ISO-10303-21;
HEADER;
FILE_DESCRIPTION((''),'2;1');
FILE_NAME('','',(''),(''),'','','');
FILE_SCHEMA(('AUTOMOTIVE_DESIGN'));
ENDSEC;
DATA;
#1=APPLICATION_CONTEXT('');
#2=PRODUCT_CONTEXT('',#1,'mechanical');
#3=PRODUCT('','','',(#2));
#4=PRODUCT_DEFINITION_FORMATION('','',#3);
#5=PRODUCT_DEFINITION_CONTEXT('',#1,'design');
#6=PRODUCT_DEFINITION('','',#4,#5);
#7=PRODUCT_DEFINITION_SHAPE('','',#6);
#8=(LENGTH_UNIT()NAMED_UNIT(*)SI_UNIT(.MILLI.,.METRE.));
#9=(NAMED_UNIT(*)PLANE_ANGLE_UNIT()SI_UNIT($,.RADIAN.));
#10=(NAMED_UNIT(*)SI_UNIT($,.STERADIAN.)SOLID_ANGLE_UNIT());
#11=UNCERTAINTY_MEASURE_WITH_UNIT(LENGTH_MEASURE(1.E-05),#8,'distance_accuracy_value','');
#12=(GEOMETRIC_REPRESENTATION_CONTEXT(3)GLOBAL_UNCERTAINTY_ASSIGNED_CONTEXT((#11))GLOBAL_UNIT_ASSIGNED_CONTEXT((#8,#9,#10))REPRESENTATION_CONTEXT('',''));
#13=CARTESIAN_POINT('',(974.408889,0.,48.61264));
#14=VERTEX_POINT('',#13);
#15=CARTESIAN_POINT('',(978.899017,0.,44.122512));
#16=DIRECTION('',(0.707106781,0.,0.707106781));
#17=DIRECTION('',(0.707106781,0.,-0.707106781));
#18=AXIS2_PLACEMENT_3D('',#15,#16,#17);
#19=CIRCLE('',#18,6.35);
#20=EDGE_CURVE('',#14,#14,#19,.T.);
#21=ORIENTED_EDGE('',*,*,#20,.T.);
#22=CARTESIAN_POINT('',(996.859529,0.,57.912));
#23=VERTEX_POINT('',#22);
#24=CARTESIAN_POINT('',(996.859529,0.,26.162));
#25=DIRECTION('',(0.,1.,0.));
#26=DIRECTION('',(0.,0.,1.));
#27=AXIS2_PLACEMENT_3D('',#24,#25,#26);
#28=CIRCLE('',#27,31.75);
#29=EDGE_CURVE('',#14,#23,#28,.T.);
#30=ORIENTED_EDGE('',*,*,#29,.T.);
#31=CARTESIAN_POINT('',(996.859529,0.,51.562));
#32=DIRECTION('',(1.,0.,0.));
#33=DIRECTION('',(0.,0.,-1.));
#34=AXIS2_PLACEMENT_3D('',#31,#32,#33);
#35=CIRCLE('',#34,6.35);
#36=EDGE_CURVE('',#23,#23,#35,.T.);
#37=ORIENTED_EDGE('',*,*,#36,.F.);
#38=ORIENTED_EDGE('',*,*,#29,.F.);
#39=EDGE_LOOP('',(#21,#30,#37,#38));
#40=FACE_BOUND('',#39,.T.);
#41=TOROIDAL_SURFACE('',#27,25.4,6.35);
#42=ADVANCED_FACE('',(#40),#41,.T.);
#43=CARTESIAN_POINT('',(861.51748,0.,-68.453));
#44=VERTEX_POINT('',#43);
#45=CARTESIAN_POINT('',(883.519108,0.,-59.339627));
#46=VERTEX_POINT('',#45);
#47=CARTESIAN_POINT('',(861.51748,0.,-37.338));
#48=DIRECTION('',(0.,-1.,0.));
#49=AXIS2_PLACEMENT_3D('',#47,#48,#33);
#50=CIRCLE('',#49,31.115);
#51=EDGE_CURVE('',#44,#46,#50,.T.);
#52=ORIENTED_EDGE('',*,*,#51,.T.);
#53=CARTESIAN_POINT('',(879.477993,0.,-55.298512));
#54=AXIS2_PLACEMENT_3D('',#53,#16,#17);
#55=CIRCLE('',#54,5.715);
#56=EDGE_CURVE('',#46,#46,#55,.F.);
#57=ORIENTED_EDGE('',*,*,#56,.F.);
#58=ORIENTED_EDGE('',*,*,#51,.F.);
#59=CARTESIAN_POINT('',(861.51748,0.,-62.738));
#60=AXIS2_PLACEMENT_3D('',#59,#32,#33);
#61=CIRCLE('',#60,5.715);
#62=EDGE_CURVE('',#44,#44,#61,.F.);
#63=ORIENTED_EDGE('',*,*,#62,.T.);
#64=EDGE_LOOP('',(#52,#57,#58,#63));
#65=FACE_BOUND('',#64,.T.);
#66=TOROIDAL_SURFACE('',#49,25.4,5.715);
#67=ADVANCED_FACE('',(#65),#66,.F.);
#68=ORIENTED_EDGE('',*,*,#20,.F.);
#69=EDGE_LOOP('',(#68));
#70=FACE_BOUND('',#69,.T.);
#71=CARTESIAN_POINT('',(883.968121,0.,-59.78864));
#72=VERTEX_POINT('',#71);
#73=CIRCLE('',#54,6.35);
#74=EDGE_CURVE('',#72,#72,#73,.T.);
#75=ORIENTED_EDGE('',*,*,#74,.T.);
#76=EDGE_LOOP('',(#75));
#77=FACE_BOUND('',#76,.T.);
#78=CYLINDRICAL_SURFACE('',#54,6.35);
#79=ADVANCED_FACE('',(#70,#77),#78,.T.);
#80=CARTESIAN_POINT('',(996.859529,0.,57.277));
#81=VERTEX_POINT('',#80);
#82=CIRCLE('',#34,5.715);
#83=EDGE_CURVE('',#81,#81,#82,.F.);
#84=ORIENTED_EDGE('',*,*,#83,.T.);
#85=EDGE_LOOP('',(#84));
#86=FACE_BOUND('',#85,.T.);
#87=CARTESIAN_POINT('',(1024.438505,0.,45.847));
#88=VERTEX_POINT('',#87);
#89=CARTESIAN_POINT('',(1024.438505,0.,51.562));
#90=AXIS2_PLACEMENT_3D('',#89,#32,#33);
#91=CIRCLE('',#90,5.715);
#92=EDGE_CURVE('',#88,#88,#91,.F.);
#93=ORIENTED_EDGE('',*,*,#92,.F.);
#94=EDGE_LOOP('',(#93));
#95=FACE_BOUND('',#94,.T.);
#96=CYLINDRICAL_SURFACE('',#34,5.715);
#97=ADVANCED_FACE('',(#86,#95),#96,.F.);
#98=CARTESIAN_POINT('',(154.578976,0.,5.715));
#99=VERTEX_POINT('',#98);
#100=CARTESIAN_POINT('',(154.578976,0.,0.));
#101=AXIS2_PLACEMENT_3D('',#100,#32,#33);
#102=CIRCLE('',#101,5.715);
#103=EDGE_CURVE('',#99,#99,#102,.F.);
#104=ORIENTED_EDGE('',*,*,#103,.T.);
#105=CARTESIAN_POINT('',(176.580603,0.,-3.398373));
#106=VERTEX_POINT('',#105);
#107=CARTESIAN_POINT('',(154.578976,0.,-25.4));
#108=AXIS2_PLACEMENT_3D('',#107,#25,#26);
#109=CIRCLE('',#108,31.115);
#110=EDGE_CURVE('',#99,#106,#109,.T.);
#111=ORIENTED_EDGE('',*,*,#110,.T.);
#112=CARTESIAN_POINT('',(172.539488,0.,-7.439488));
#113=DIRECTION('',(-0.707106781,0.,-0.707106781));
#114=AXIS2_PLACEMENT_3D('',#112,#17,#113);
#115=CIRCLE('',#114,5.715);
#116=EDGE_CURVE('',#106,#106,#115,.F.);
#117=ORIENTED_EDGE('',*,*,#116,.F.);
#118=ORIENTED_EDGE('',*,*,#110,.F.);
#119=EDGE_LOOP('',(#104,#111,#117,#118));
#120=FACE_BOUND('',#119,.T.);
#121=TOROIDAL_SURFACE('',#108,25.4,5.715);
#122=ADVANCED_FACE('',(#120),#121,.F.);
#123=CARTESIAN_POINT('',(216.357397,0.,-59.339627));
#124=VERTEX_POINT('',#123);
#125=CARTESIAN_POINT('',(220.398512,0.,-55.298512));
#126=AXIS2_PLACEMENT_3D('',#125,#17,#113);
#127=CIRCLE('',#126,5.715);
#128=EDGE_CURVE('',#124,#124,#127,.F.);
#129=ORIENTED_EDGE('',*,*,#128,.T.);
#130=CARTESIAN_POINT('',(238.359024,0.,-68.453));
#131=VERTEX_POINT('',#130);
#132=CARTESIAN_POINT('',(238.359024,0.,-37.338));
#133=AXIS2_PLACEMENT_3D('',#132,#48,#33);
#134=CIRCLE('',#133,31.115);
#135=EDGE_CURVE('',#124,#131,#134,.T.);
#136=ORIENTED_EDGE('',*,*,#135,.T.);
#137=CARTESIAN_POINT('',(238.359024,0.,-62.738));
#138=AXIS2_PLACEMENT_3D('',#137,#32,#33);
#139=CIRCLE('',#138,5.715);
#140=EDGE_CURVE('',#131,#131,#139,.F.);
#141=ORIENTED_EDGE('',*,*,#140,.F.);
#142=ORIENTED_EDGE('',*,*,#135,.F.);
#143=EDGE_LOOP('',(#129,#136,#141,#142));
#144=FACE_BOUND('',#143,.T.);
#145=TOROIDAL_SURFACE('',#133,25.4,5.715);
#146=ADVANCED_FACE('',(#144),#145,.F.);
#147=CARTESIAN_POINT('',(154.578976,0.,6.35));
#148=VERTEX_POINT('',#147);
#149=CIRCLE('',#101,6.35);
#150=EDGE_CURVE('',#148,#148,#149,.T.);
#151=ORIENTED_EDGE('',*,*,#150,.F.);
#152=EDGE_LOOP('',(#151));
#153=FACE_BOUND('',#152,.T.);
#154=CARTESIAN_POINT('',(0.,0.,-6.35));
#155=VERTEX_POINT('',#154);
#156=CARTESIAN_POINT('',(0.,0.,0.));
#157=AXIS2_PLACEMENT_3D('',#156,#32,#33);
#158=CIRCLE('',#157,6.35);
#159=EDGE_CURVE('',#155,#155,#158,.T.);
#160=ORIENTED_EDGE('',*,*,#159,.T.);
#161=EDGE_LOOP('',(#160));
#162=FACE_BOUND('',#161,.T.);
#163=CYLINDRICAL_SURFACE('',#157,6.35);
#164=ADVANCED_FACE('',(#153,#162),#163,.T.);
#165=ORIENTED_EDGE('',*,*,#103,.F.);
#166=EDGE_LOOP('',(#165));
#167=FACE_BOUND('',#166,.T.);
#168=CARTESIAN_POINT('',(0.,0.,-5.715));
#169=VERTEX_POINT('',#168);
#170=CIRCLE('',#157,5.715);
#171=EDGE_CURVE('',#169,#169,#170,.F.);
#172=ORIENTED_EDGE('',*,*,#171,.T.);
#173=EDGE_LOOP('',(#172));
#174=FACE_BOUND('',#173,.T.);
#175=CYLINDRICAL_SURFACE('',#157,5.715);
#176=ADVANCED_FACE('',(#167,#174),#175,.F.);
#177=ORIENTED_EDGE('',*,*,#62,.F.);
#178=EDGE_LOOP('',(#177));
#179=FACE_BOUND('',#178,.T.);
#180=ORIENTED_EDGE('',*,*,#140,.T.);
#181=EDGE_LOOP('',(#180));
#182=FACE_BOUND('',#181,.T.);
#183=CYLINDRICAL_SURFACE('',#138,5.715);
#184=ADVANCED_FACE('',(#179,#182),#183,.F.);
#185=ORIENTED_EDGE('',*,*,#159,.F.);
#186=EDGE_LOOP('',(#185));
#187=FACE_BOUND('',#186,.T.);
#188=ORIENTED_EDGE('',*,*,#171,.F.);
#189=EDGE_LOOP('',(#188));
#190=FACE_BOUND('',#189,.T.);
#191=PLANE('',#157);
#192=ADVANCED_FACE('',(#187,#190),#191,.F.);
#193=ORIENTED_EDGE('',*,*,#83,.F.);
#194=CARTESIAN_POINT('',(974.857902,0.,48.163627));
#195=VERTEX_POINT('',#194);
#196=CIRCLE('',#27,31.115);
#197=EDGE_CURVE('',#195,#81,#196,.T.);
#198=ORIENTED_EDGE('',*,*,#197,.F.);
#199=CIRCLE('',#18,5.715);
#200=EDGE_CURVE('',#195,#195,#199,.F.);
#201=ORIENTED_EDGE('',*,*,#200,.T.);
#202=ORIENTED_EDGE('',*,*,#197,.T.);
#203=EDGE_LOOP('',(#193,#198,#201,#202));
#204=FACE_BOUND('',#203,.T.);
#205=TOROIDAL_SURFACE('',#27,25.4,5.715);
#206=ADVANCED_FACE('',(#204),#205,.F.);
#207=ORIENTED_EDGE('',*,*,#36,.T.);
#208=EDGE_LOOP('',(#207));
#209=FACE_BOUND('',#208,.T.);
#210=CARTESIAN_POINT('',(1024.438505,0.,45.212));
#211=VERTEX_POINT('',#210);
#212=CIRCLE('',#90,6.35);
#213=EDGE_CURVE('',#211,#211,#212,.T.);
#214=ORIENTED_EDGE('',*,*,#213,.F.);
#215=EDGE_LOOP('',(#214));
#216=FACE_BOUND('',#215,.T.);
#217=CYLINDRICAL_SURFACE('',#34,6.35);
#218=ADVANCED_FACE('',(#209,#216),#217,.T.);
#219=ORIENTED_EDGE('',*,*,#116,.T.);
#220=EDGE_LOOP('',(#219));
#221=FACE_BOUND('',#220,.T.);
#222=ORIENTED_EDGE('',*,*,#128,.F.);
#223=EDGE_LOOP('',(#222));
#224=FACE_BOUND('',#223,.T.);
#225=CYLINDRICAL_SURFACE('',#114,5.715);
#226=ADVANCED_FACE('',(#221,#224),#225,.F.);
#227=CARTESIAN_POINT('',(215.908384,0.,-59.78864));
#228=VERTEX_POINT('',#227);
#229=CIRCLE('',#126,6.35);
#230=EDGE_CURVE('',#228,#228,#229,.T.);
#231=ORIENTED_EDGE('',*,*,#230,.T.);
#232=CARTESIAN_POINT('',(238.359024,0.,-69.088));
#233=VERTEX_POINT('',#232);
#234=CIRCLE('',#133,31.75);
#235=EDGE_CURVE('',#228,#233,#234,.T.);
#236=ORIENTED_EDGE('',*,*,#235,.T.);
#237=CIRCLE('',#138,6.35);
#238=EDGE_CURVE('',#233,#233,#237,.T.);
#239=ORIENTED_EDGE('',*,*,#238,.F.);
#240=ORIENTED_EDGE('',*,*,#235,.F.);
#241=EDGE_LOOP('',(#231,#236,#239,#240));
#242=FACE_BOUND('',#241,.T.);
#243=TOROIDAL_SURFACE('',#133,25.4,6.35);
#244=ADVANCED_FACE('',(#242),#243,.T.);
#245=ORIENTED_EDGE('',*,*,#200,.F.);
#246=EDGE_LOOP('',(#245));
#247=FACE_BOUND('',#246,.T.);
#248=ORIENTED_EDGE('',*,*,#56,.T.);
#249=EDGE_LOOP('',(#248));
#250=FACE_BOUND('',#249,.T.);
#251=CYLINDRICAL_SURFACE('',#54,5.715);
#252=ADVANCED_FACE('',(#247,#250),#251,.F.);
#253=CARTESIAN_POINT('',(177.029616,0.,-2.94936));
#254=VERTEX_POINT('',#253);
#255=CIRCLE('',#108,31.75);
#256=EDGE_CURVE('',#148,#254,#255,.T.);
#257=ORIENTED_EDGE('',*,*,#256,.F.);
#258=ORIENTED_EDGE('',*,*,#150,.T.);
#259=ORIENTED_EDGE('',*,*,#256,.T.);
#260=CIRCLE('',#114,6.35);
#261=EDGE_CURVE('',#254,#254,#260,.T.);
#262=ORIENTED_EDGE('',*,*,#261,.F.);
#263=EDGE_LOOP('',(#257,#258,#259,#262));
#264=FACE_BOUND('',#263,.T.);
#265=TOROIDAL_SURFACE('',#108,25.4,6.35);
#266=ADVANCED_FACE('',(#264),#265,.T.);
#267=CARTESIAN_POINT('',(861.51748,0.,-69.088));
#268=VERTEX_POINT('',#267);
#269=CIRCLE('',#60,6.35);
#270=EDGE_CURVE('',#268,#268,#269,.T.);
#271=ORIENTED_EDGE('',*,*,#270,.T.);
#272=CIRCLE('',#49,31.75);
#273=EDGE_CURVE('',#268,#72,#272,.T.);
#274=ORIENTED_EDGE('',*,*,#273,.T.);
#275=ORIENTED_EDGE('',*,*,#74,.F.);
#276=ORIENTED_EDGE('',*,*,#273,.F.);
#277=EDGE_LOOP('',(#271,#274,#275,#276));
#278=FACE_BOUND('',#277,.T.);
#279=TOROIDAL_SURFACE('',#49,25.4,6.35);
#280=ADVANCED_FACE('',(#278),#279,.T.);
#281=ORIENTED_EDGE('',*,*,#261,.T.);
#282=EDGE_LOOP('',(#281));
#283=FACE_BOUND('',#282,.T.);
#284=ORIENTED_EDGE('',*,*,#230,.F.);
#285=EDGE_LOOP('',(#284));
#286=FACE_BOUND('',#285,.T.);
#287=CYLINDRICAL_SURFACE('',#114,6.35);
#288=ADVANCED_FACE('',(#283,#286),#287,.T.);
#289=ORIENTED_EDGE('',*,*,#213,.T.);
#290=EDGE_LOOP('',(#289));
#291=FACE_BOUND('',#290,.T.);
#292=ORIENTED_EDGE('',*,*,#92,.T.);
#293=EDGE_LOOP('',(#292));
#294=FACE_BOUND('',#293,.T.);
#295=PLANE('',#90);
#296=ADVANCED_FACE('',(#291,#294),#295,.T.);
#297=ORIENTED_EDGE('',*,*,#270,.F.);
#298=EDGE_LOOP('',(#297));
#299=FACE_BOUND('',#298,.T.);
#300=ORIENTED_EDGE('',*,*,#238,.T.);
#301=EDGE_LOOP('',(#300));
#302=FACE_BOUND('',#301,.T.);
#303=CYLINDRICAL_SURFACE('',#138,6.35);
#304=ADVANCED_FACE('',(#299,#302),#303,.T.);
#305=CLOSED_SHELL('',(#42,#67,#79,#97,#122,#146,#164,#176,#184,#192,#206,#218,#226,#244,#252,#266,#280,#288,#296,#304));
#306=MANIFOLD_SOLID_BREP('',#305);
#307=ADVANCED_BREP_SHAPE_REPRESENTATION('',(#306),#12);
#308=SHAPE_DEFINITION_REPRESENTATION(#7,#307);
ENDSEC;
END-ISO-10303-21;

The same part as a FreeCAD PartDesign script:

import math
import FreeCAD as App
import Part
import Sketcher

V = App.Vector
Q = App.Units.Quantity

doc = App.newDocument("Part")
body = doc.addObject("PartDesign::Body", "Body")

sketch1 = body.newObject("Sketcher::SketchObject", "Sketch")
sketch1.AttachmentSupport = (doc.getObject("YZ_Plane"), [""])
sketch1.MapMode = "FlatFace"
sketch1.addGeometry([
    Part.Circle(V(0, 0, 0), V(0, 0, 1), 6.35),
    Part.Circle(V(0, 0, 0), V(0, 0, 1), 5.715),
], False)
sketch1.addConstraint([
    Sketcher.Constraint("Coincident", 0, 3, -1, 1),
    Sketcher.Constraint("Coincident", 1, 3, -1, 1),
    Sketcher.Constraint("Diameter", 0, Q("0.5 in")),
    Sketcher.Constraint("Diameter", 1, Q("0.45 in")),
])

sketch2 = body.newObject("Sketcher::SketchObject", "Sketch001")
sketch2.AttachmentSupport = (doc.getObject("XZ_Plane"), [""])
sketch2.MapMode = "FlatFace"
sketch2.addGeometry([
    Part.LineSegment(V(0, 0, 0), V(154.578976, 0, 0)),
    Part.ArcOfCircle(Part.Circle(V(154.578976, -25.4, 0), V(0, 0, 1), 25.4), math.radians(45), math.radians(90)),
    Part.LineSegment(V(172.539488, -7.439488, 0), V(220.398512, -55.298512, 0)),
    Part.ArcOfCircle(Part.Circle(V(238.359024, -37.338, 0), V(0, 0, 1), 25.4), math.radians(-135), math.radians(-90)),
    Part.LineSegment(V(238.359024, -62.738, 0), V(861.51748, -62.738, 0)),
    Part.ArcOfCircle(Part.Circle(V(861.51748, -37.338, 0), V(0, 0, 1), 25.4), math.radians(-90), math.radians(-45)),
    Part.LineSegment(V(879.477993, -55.298512, 0), V(978.899017, 44.122512, 0)),
    Part.ArcOfCircle(Part.Circle(V(996.859529, 26.162, 0), V(0, 0, 1), 25.4), math.radians(90), math.radians(135)),
    Part.LineSegment(V(996.859529, 51.562, 0), V(1024.438505, 51.562, 0)),
], False)
sketch2.addConstraint([
    Sketcher.Constraint("Tangent", 0, 2, 1, 2),
    Sketcher.Constraint("Tangent", 1, 1, 2, 1),
    Sketcher.Constraint("Tangent", 2, 2, 3, 1),
    Sketcher.Constraint("Tangent", 3, 2, 4, 1),
    Sketcher.Constraint("Tangent", 4, 2, 5, 1),
    Sketcher.Constraint("Tangent", 5, 2, 6, 1),
    Sketcher.Constraint("Tangent", 6, 2, 7, 2),
    Sketcher.Constraint("Tangent", 7, 1, 8, 1),
    Sketcher.Constraint("Horizontal", 0),
    Sketcher.Constraint("Horizontal", 4),
    Sketcher.Constraint("Horizontal", 8),
    Sketcher.Constraint("Coincident", 0, 1, -1, 1),
    Sketcher.Constraint("Equal", 1, 3),
    Sketcher.Constraint("Equal", 3, 5),
    Sketcher.Constraint("Equal", 5, 7),
    Sketcher.Constraint("Perpendicular", 2, 6),
    Sketcher.Constraint("Horizontal", 2, 2, 5, 2),
    Sketcher.Constraint("Radius", 1, Q("1 in")),
    Sketcher.Constraint("DistanceY", 5, 3, 7, 3, Q("2.5 in")),
    Sketcher.Constraint("DistanceY", 3, 3, -1, 1, Q("1.47 in")),
    Sketcher.Constraint("DistanceX", 0, 1, 0, 2, 154.578976),
    Sketcher.Constraint("DistanceX", 4, 1, 4, 2, 623.158456),
    Sketcher.Constraint("DistanceX", 8, 1, 8, 2, 27.578976),
])
doc.recompute()

additivepipe = body.newObject("PartDesign::AdditivePipe", "AdditivePipe")
additivepipe.Profile = sketch1
additivepipe.Spine = (sketch2, ["Edge1", "Edge2", "Edge3", "Edge4", "Edge5", "Edge6", "Edge7", "Edge8", "Edge9"])

doc.recompute()
